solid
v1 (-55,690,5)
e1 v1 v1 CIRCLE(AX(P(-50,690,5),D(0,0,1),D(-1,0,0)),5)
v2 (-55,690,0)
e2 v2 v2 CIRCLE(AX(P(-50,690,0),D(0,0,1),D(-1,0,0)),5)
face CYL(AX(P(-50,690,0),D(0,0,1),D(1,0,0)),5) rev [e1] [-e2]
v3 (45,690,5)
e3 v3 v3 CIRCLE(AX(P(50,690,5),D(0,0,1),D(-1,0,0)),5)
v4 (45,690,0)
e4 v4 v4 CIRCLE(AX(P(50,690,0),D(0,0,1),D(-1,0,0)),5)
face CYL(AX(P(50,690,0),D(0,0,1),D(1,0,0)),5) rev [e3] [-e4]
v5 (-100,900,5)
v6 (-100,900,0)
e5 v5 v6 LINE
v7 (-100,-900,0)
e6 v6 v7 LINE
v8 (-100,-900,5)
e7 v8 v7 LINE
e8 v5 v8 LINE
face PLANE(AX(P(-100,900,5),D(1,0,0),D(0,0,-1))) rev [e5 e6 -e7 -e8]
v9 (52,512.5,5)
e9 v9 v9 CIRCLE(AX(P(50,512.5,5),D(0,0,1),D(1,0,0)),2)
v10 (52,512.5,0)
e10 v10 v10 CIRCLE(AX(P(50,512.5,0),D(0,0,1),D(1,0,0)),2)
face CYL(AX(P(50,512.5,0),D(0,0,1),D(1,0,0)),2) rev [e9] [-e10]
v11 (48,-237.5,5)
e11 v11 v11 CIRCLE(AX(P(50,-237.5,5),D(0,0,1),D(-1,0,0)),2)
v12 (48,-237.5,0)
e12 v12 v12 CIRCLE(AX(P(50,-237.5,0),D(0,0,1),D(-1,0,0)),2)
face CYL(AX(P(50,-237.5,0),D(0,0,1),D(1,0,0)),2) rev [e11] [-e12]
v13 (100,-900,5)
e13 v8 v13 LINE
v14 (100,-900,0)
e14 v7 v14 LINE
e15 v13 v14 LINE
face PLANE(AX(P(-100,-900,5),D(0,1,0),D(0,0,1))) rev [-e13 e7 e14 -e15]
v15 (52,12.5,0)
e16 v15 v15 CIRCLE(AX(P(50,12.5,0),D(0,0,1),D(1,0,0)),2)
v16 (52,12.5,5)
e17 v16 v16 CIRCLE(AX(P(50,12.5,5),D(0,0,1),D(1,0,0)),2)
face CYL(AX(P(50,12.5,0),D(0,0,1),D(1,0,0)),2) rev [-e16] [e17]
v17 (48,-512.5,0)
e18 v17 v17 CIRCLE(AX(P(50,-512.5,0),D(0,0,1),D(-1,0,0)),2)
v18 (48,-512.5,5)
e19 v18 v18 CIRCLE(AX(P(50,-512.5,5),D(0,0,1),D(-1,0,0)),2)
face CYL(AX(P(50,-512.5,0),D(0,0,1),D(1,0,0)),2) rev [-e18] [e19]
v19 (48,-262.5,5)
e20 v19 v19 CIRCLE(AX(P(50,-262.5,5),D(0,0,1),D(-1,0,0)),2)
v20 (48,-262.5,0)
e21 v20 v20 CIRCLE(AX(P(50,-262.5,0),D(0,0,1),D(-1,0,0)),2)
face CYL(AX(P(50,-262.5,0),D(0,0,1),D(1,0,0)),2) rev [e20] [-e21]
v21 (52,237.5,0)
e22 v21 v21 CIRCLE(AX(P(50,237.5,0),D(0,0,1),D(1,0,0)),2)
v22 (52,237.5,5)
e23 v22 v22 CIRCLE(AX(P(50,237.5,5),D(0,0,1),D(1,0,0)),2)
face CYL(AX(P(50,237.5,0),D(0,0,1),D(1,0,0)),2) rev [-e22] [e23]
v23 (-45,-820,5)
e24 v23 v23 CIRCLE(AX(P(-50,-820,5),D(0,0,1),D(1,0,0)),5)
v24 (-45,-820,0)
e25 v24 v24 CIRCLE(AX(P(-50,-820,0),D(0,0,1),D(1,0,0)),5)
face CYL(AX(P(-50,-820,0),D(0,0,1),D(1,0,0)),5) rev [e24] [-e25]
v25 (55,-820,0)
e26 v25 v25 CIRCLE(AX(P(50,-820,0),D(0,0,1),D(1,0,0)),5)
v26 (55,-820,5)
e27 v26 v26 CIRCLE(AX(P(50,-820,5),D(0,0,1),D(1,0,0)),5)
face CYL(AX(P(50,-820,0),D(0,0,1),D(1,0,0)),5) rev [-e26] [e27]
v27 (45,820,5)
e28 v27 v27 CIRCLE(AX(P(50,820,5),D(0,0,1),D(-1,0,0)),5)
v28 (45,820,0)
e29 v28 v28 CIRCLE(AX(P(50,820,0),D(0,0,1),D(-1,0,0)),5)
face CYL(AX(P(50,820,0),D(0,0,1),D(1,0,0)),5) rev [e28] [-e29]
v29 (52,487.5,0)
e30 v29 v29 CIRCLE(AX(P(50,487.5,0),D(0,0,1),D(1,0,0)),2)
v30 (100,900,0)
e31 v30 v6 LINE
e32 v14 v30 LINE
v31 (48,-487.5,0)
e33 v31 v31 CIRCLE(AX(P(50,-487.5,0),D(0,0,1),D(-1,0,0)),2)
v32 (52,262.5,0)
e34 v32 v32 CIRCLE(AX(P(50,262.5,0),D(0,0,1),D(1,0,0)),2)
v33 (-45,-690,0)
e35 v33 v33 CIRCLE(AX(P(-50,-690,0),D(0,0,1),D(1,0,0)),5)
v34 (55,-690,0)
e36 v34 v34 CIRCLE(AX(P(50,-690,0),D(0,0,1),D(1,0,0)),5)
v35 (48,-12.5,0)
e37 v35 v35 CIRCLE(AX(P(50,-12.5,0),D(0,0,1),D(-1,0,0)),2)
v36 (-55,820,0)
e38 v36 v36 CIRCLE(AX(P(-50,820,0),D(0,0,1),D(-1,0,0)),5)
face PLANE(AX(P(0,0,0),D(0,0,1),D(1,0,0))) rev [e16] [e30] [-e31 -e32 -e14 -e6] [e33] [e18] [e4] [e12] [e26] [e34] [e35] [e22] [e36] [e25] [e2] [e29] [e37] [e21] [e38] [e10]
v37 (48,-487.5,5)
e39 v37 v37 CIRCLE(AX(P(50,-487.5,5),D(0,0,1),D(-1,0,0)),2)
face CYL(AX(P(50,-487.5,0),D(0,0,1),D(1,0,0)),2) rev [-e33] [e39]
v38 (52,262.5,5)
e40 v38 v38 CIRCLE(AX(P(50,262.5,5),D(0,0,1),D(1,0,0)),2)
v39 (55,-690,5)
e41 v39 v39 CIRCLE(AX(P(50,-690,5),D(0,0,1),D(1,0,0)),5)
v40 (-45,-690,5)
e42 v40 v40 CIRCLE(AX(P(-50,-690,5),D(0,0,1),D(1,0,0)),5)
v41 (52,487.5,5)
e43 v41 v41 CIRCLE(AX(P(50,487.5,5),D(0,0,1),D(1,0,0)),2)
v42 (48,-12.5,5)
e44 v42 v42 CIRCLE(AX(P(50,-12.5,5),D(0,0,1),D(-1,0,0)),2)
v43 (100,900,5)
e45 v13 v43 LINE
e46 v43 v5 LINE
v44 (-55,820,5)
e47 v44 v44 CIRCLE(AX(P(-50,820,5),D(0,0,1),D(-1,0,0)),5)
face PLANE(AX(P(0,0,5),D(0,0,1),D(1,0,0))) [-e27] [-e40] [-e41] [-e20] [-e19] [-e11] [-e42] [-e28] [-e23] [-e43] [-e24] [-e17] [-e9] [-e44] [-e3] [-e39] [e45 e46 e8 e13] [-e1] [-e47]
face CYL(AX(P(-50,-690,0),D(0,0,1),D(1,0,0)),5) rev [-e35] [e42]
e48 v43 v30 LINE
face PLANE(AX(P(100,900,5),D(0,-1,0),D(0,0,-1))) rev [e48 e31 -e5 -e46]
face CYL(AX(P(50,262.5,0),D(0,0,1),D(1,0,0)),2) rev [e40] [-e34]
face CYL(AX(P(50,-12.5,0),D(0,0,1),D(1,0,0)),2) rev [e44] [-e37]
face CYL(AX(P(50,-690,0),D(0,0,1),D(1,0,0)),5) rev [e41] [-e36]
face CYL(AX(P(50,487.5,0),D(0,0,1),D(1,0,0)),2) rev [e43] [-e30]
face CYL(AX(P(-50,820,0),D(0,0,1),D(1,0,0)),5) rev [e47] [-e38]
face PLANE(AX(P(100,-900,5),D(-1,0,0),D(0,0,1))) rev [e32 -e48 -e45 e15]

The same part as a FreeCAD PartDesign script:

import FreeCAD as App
import Part
import Sketcher
Q = App.Units.Quantity

doc = App.newDocument("Part")
body = doc.addObject("PartDesign::Body", "Body")

# Sketch on XY plane
sketch1 = body.newObject("Sketcher::SketchObject", "Sketch")
sketch1.AttachmentSupport = (doc.getObject("XY_Plane"), [""])
sketch1.MapMode = "FlatFace"
sketch1.addGeometry([
    Part.LineSegment(App.Vector(-100, 900, 0), App.Vector(-100, -900, 0)),
    Part.LineSegment(App.Vector(-100, -900, 0), App.Vector(100, -900, 0)),
    Part.LineSegment(App.Vector(100, -900, 0), App.Vector(100, 900, 0)),
    Part.LineSegment(App.Vector(100, 900, 0), App.Vector(-100, 900, 0)),
], False)
sketch1.addConstraint([
    Sketcher.Constraint("Coincident", 0, 2, 1, 1),
    Sketcher.Constraint("Coincident", 1, 2, 2, 1),
    Sketcher.Constraint("Coincident", 2, 2, 3, 1),
    Sketcher.Constraint("Coincident", 3, 2, 0, 1),
    Sketcher.Constraint("Vertical", 0),
    Sketcher.Constraint("Horizontal", 1),
    Sketcher.Constraint("Vertical", 2),
    Sketcher.Constraint("Horizontal", 3),
    Sketcher.Constraint("Symmetric", 0, 2, 2, 2, -1, 1),
    Sketcher.Constraint("DistanceX", 1, 1, 1, 2, Q("200 mm")),
    Sketcher.Constraint("DistanceY", 0, 2, 0, 1, Q("1800 mm")),
])
pad1 = body.newObject("PartDesign::Pad", "Pad")
pad1.Profile = sketch1
pad1.Length = 5

# Sketch on XY plane
sketch2 = body.newObject("Sketcher::SketchObject", "Sketch001")
sketch2.AttachmentSupport = (doc.getObject("XY_Plane"), [""])
sketch2.MapMode = "FlatFace"
sketch2.AttachmentOffset = App.Placement(App.Vector(0, 0, 5), App.Rotation())
sketch2.addGeometry([
    Part.Circle(App.Vector(-50, -690, 0), App.Vector(0, 0, 1), 5),  # 0
    Part.Circle(App.Vector(50, -690, 0), App.Vector(0, 0, 1), 5),  # 1
    Part.Circle(App.Vector(-50, -820, 0), App.Vector(0, 0, 1), 5),  # 2
    Part.Circle(App.Vector(50, -820, 0), App.Vector(0, 0, 1), 5),  # 3
    Part.Circle(App.Vector(50, 820, 0), App.Vector(0, 0, 1), 5),  # 4
    Part.Circle(App.Vector(-50, 820, 0), App.Vector(0, 0, 1), 5),  # 5
    Part.Circle(App.Vector(50, 690, 0), App.Vector(0, 0, 1), 5),  # 6
    Part.Circle(App.Vector(-50, 690, 0), App.Vector(0, 0, 1), 5),  # 7
    Part.Circle(App.Vector(50, 512.5, 0), App.Vector(0, 0, 1), 2),  # 8
    Part.Circle(App.Vector(50, 487.5, 0), App.Vector(0, 0, 1), 2),  # 9
    Part.Circle(App.Vector(50, 262.5, 0), App.Vector(0, 0, 1), 2),  # 10
    Part.Circle(App.Vector(50, 237.5, 0), App.Vector(0, 0, 1), 2),  # 11
    Part.Circle(App.Vector(50, 12.5, 0), App.Vector(0, 0, 1), 2),  # 12
    Part.Circle(App.Vector(50, -12.5, 0), App.Vector(0, 0, 1), 2),  # 13
    Part.Circle(App.Vector(50, -237.5, 0), App.Vector(0, 0, 1), 2),  # 14
    Part.Circle(App.Vector(50, -262.5, 0), App.Vector(0, 0, 1), 2),  # 15
    Part.Circle(App.Vector(50, -487.5, 0), App.Vector(0, 0, 1), 2),  # 16
    Part.Circle(App.Vector(50, -512.5, 0), App.Vector(0, 0, 1), 2),  # 17
], False)
sketch2.addConstraint([
    Sketcher.Constraint("Equal", 0, 1),
    Sketcher.Constraint("Equal", 1, 2),
    Sketcher.Constraint("Equal", 2, 3),
    Sketcher.Constraint("Equal", 3, 4),
    Sketcher.Constraint("Equal", 4, 5),
    Sketcher.Constraint("Equal", 5, 6),
    Sketcher.Constraint("Equal", 6, 7),
    Sketcher.Constraint("Equal", 8, 9),
    Sketcher.Constraint("Equal", 9, 10),
    Sketcher.Constraint("Equal", 10, 11),
    Sketcher.Constraint("Equal", 11, 12),
    Sketcher.Constraint("Equal", 12, 13),
    Sketcher.Constraint("Equal", 13, 14),
    Sketcher.Constraint("Equal", 14, 15),
    Sketcher.Constraint("Equal", 15, 16),
    Sketcher.Constraint("Equal", 16, 17),
    Sketcher.Constraint("Symmetric", 2, 3, 4, 3, -1, 1),
    Sketcher.Constraint("Symmetric", 3, 3, 5, 3, -1, 1),
    Sketcher.Constraint("Symmetric", 0, 3, 6, 3, -1, 1),
    Sketcher.Constraint("Symmetric", 1, 3, 7, 3, -1, 1),
    Sketcher.Constraint("Symmetric", 0, 3, 1, 3, -2),
    Sketcher.Constraint("Symmetric", 2, 3, 3, 3, -2),
    Sketcher.Constraint("Symmetric", 12, 3, 13, 3, -1),
    Sketcher.Constraint("Symmetric", 11, 3, 14, 3, -1),
    Sketcher.Constraint("Symmetric", 10, 3, 15, 3, -1),
    Sketcher.Constraint("Symmetric", 9, 3, 16, 3, -1),
    Sketcher.Constraint("Symmetric", 8, 3, 17, 3, -1),
    Sketcher.Constraint("Vertical", 0, 3, 2, 3),
    Sketcher.Constraint("Vertical", 6, 3, 8, 3),
    Sketcher.Constraint("Vertical", 8, 3, 9, 3),
    Sketcher.Constraint("Vertical", 9, 3, 10, 3),
    Sketcher.Constraint("Vertical", 10, 3, 11, 3),
    Sketcher.Constraint("Vertical", 11, 3, 12, 3),
    Sketcher.Constraint("Diameter", 0, Q("10 mm")),
    Sketcher.Constraint("Diameter", 8, Q("4 mm")),
    Sketcher.Constraint("DistanceX", 0, 3, -1, 1, Q("50 mm")),
    Sketcher.Constraint("DistanceY", 0, 3, -1, 1, Q("690 mm")),
    Sketcher.Constraint("DistanceY", 2, 3, -1, 1, Q("820 mm")),
    Sketcher.Constraint("DistanceY", 9, 3, 8, 3, Q("25 mm")),
    Sketcher.Constraint("DistanceY", 10, 3, 9, 3, Q("225 mm")),
    Sketcher.Constraint("DistanceY", 11, 3, 10, 3, Q("25 mm")),
    Sketcher.Constraint("DistanceY", 12, 3, 11, 3, Q("225 mm")),
    Sketcher.Constraint("DistanceY", 13, 3, 12, 3, Q("25 mm")),
])
pocket1 = body.newObject("PartDesign::Pocket", "Pocket")
pocket1.Profile = sketch2
pocket1.Length = 5

doc.recompute()
